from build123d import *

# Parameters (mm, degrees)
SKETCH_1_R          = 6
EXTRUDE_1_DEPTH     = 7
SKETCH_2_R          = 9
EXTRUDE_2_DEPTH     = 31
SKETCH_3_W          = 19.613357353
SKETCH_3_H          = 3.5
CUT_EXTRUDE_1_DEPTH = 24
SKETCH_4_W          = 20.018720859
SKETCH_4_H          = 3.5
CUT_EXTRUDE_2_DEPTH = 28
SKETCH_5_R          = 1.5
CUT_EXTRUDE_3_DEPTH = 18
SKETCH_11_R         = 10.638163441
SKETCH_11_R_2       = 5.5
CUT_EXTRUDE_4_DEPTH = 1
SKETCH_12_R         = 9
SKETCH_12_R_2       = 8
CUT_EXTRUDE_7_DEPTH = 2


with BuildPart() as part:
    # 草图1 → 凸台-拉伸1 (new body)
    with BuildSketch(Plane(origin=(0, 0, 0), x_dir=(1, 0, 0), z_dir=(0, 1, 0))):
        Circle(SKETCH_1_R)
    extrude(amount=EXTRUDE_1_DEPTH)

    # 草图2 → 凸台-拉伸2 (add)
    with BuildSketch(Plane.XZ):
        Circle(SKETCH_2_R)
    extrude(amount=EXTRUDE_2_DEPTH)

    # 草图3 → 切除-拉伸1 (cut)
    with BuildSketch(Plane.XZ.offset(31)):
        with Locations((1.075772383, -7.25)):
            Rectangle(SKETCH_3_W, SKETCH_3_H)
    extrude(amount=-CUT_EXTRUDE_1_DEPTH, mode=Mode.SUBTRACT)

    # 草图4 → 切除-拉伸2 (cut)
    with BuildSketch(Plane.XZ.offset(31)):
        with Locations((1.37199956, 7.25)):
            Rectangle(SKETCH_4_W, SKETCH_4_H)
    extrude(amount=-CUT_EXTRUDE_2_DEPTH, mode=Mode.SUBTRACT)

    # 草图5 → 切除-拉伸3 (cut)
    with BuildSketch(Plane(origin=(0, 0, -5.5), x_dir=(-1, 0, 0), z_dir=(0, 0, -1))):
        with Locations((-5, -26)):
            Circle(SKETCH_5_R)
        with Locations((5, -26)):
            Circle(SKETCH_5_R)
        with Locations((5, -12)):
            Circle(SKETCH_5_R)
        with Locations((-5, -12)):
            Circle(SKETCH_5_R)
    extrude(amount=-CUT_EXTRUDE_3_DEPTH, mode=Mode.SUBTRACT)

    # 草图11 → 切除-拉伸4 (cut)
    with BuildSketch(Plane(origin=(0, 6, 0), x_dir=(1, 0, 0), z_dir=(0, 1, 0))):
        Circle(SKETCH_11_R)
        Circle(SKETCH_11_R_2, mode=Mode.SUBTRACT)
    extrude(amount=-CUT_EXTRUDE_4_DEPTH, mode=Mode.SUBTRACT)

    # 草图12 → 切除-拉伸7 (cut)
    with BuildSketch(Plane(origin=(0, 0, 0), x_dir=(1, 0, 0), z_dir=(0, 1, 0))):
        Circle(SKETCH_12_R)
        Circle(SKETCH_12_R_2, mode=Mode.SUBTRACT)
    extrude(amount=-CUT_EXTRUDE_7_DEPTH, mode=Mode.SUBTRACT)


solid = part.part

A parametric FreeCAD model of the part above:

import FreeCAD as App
import Part
import Sketcher
Q = App.Units.Quantity

doc = App.newDocument("Part")
body = doc.addObject("PartDesign::Body", "Body")

# Sketch on XZ plane
sketch1 = body.newObject("Sketcher::SketchObject", "Sketch")
sketch1.AttachmentSupport = (doc.getObject("XZ_Plane"), [""])
sketch1.MapMode = "FlatFace"
sketch1.addGeometry(Part.Circle(App.Vector(0, 0, 0), App.Vector(0, 0, 1), 6), False)
sketch1.addConstraint([
    Sketcher.Constraint("Coincident", 0, 3, -1, 1),
    Sketcher.Constraint("Diameter", 0, Q("12 mm")),
])
pad1 = body.newObject("PartDesign::Pad", "Pad")
pad1.Profile = sketch1
pad1.Length = 7
pad1.Reversed = True

# Sketch on XZ plane
sketch2 = body.newObject("Sketcher::SketchObject", "Sketch001")
sketch2.AttachmentSupport = (doc.getObject("XZ_Plane"), [""])
sketch2.MapMode = "FlatFace"
sketch2.addGeometry(Part.Circle(App.Vector(0, 0, 0), App.Vector(0, 0, 1), 9), False)
sketch2.addConstraint([
    Sketcher.Constraint("Coincident", 0, 3, -1, 1),
    Sketcher.Constraint("Diameter", 0, Q("18 mm")),
])
pad2 = body.newObject("PartDesign::Pad", "Pad001")
pad2.Profile = sketch2
pad2.Length = 31

# Sketch on XZ plane
sketch3 = body.newObject("Sketcher::SketchObject", "Sketch002")
sketch3.AttachmentSupport = (doc.getObject("XZ_Plane"), [""])
sketch3.MapMode = "FlatFace"
sketch3.AttachmentOffset = App.Placement(App.Vector(0, 0, 31), App.Rotation())
sketch3.addGeometry([
    Part.LineSegment(App.Vector(-8.7, -5.5, 0), App.Vector(-8.7, -9, 0)),
    Part.LineSegment(App.Vector(-8.7, -9, 0), App.Vector(10.9, -9, 0)),
    Part.LineSegment(App.Vector(10.9, -9, 0), App.Vector(10.9, -5.5, 0)),
    Part.LineSegment(App.Vector(10.9, -5.5, 0), App.Vector(-8.7, -5.5, 0)),
], False)
sketch3.addConstraint([
    Sketcher.Constraint("Coincident", 0, 2, 1, 1),
    Sketcher.Constraint("Coincident", 1, 2, 2, 1),
    Sketcher.Constraint("Coincident", 2, 2, 3, 1),
    Sketcher.Constraint("Coincident", 3, 2, 0, 1),
    Sketcher.Constraint("Vertical", 0),
    Sketcher.Constraint("Horizontal", 1),
    Sketcher.Constraint("Vertical", 2),
    Sketcher.Constraint("Horizontal", 3),
    Sketcher.Constraint("DistanceY", 0, 2, 0, 1, Q("3.5 mm")),
    Sketcher.Constraint("DistanceY", 0, 2, -1, 1, Q("9 mm")),
    Sketcher.Constraint("DistanceX", 1, 1, 1, 2, Q("19.613357 mm")),
    Sketcher.Constraint("DistanceX", -1, 1, 1, 2, Q("10.882451 mm")),
])
pocket1 = body.newObject("PartDesign::Pocket", "Pocket")
pocket1.Profile = sketch3
pocket1.Length = 24

# Sketch on XZ plane
sketch4 = body.newObject("Sketcher::SketchObject", "Sketch003")
sketch4.AttachmentSupport = (doc.getObject("XZ_Plane"), [""])
sketch4.MapMode = "FlatFace"
sketch4.AttachmentOffset = App.Placement(App.Vector(0, 0, 31), App.Rotation())
sketch4.addGeometry([
    Part.LineSegment(App.Vector(-8.6, 9, 0), App.Vector(-8.6, 5.5, 0)),
    Part.LineSegment(App.Vector(-8.6, 5.5, 0), App.Vector(11.4, 5.5, 0)),
    Part.LineSegment(App.Vector(11.4, 5.5, 0), App.Vector(11.4, 9, 0)),
    Part.LineSegment(App.Vector(11.4, 9, 0), App.Vector(-8.6, 9, 0)),
], False)
sketch4.addConstraint([
    Sketcher.Constraint("Coincident", 0, 2, 1, 1),
    Sketcher.Constraint("Coincident", 1, 2, 2, 1),
    Sketcher.Constraint("Coincident", 2, 2, 3, 1),
    Sketcher.Constraint("Coincident", 3, 2, 0, 1),
    Sketcher.Constraint("Vertical", 0),
    Sketcher.Constraint("Horizontal", 1),
    Sketcher.Constraint("Vertical", 2),
    Sketcher.Constraint("Horizontal", 3),
    Sketcher.Constraint("DistanceY", 0, 2, 0, 1, Q("3.5 mm")),
    Sketcher.Constraint("DistanceY", -1, 1, 2, 2, Q("9 mm")),
    Sketcher.Constraint("DistanceX", 1, 1, 1, 2, Q("20.018721 mm")),
    Sketcher.Constraint("DistanceX", 0, 2, -1, 1, Q("8.637361 mm")),
])
pocket2 = body.newObject("PartDesign::Pocket", "Pocket001")
pocket2.Profile = sketch4
pocket2.Length = 28

# Sketch on XY plane
sketch5 = body.newObject("Sketcher::SketchObject", "Sketch004")
sketch5.AttachmentSupport = (doc.getObject("XY_Plane"), [""])
sketch5.MapMode = "FlatFace"
sketch5.AttachmentOffset = App.Placement(App.Vector(0, 0, -5.5), App.Rotation())
sketch5.addGeometry([
    Part.Circle(App.Vector(5, -26, 0), App.Vector(0, 0, 1), 1.5),
    Part.Circle(App.Vector(-5, -26, 0), App.Vector(0, 0, 1), 1.5),
    Part.Circle(App.Vector(-5, -12, 0), App.Vector(0, 0, 1), 1.5),
    Part.Circle(App.Vector(5, -12, 0), App.Vector(0, 0, 1), 1.5),
], False)
sketch5.addConstraint([
    Sketcher.Constraint("Equal", 0, 1),
    Sketcher.Constraint("Equal", 1, 2),
    Sketcher.Constraint("Equal", 2, 3),
    Sketcher.Constraint("Symmetric", 0, 3, 1, 3, -2),
    Sketcher.Constraint("Symmetric", 2, 3, 3, 3, -2),
    Sketcher.Constraint("Vertical", 1, 3, 2, 3),
    Sketcher.Constraint("Diameter", 0, Q("3 mm")),
    Sketcher.Constraint("DistanceX", -1, 1, 0, 3, Q("5 mm")),
    Sketcher.Constraint("DistanceY", 0, 3, -1, 1, Q("26 mm")),
    Sketcher.Constraint("DistanceY", 2, 3, -1, 1, Q("12 mm")),
])
pocket3 = body.newObject("PartDesign::Pocket", "Pocket002")
pocket3.Profile = sketch5
pocket3.Length = 18
pocket3.Reversed = True

# Sketch on XZ plane
sketch6 = body.newObject("Sketcher::SketchObject", "Sketch005")
sketch6.AttachmentSupport = (doc.getObject("XZ_Plane"), [""])
sketch6.MapMode = "FlatFace"
sketch6.AttachmentOffset = App.Placement(App.Vector(0, 0, -6), App.Rotation())
sketch6.addGeometry([
    Part.Circle(App.Vector(0, 0, 0), App.Vector(0, 0, 1), 11),
    Part.Circle(App.Vector(0, 0, 0), App.Vector(0, 0, 1), 6),
], False)
sketch6.addConstraint([
    Sketcher.Constraint("Coincident", 0, 3, -1, 1),
    Sketcher.Constraint("Coincident", 1, 3, -1, 1),
    Sketcher.Constraint("Diameter", 1, Q("11 mm")),
    Sketcher.Constraint("Diameter", 0, Q("21.276327 mm")),
])
pocket4 = body.newObject("PartDesign::Pocket", "Pocket003")
pocket4.Profile = sketch6
pocket4.Length = 1
pocket4.Reversed = True

# Sketch on XZ plane
sketch7 = body.newObject("Sketcher::SketchObject", "Sketch006")
sketch7.AttachmentSupport = (doc.getObject("XZ_Plane"), [""])
sketch7.MapMode = "FlatFace"
sketch7.addGeometry([
    Part.Circle(App.Vector(0, 0, 0), App.Vector(0, 0, 1), 9),
    Part.Circle(App.Vector(0, 0, 0), App.Vector(0, 0, 1), 8),
], False)
sketch7.addConstraint([
    Sketcher.Constraint("Coincident", 0, 3, -1, 1),
    Sketcher.Constraint("Coincident", 1, 3, -1, 1),
    Sketcher.Constraint("Diameter", 0, Q("18 mm")),
    Sketcher.Constraint("Diameter", 1, Q("16 mm")),
])
pocket5 = body.newObject("PartDesign::Pocket", "Pocket004")
pocket5.Profile = sketch7
pocket5.Length = 2
pocket5.Reversed = True

doc.recompute()
